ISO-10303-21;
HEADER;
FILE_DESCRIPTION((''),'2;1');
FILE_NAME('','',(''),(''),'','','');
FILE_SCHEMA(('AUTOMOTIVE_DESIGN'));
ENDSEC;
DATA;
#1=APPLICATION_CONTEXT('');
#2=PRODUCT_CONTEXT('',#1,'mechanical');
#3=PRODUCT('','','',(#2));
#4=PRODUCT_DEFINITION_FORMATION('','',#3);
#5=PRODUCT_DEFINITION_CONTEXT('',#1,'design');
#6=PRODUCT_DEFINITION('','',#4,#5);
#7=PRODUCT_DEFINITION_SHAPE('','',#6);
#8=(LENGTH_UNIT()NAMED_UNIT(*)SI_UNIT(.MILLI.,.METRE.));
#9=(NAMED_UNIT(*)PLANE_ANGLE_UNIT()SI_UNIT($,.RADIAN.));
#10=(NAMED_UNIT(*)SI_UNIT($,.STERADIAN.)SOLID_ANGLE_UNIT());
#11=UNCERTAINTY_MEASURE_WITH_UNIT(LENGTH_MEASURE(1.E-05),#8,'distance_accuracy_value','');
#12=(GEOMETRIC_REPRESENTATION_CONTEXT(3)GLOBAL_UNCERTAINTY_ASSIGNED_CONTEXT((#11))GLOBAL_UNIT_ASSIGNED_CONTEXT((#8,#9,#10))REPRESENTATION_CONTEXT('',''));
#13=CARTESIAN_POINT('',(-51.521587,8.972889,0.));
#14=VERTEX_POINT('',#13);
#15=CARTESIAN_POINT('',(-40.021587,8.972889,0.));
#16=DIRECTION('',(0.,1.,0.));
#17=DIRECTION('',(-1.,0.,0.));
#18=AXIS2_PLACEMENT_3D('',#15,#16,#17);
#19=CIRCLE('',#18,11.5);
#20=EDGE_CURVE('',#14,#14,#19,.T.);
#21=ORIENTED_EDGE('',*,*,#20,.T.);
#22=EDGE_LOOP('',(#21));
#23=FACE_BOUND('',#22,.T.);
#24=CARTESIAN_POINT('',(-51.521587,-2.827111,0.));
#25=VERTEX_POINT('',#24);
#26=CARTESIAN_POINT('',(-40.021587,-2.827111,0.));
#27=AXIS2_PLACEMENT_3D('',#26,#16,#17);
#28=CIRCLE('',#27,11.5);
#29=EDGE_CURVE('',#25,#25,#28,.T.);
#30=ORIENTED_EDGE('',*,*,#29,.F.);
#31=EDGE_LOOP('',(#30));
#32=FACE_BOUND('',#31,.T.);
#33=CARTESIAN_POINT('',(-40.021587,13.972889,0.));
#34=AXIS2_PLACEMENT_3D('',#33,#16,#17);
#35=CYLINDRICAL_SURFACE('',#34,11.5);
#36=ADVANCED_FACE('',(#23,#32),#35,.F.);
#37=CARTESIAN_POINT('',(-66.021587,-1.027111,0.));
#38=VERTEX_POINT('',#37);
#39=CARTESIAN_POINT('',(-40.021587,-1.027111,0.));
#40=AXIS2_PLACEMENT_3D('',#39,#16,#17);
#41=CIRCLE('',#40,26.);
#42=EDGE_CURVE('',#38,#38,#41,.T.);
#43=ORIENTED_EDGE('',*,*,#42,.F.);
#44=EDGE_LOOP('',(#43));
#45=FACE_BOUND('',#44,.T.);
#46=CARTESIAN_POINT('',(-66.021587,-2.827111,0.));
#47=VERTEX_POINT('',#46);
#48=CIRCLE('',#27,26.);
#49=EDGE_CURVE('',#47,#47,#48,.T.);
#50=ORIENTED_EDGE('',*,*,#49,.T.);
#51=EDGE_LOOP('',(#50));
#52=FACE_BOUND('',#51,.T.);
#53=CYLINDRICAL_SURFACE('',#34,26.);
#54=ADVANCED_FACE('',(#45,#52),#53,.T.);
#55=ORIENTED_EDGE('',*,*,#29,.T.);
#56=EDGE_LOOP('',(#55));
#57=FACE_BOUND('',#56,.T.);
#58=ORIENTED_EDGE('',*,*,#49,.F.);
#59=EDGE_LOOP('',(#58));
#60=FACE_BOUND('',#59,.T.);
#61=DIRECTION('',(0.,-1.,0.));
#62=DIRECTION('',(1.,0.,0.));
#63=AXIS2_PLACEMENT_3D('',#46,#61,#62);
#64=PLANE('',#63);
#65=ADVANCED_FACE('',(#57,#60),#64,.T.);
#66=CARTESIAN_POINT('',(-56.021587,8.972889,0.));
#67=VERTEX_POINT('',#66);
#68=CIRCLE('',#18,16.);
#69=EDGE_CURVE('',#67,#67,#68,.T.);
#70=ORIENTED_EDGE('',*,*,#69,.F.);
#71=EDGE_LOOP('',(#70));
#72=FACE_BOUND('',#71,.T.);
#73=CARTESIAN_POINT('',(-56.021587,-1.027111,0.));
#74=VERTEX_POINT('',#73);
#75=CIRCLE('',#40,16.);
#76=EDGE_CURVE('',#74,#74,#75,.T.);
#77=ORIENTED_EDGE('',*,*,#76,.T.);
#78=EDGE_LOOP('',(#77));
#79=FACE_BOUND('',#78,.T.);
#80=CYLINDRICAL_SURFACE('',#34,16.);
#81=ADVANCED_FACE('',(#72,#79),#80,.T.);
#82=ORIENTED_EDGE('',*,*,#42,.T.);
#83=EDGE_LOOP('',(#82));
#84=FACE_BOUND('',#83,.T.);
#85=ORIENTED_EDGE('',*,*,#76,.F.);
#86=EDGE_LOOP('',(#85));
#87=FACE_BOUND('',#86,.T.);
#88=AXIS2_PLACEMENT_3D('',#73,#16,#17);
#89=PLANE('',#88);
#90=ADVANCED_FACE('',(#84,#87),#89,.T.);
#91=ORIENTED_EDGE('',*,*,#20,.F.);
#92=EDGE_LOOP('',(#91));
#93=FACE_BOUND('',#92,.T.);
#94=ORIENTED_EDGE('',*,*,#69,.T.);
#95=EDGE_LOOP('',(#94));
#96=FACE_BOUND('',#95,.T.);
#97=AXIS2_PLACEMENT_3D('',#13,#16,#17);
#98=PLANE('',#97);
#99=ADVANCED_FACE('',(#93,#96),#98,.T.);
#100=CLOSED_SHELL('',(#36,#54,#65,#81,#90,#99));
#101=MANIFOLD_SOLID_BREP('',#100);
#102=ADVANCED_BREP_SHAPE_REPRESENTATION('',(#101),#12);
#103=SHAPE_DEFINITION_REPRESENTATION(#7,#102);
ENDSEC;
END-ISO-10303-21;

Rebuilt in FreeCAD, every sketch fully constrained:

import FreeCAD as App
import Part
import Sketcher

V = App.Vector

doc = App.newDocument("Part")
body = doc.addObject("PartDesign::Body", "Body")

sketch1 = body.newObject("Sketcher::SketchObject", "Sketch")
sketch1.AttachmentSupport = (doc.getObject("XY_Plane"), [""])
sketch1.MapMode = "FlatFace"
sketch1.addGeometry([
    Part.LineSegment(V(-51.5, -2.8, 0), V(-51.5, 9, 0)),
    Part.LineSegment(V(-51.5, 9, 0), V(-56, 9, 0)),
    Part.LineSegment(V(-56, 9, 0), V(-56, -1, 0)),
    Part.LineSegment(V(-56, -1, 0), V(-66, -1, 0)),
    Part.LineSegment(V(-66, -1, 0), V(-66, -2.8, 0)),
    Part.LineSegment(V(-66, -2.8, 0), V(-51.5, -2.8, 0)),
], False)
sketch1.addGeometry(Part.LineSegment(V(-40, 9, 0), V(-40, -2.8, 0)), True)
sketch1.addConstraint([
    Sketcher.Constraint("Coincident", 0, 2, 1, 1),
    Sketcher.Constraint("Coincident", 1, 2, 2, 1),
    Sketcher.Constraint("Coincident", 2, 2, 3, 1),
    Sketcher.Constraint("Coincident", 3, 2, 4, 1),
    Sketcher.Constraint("Coincident", 4, 2, 5, 1),
    Sketcher.Constraint("Coincident", 5, 2, 0, 1),
    Sketcher.Constraint("Vertical", 0),
    Sketcher.Constraint("Horizontal", 1),
    Sketcher.Constraint("Vertical", 2),
    Sketcher.Constraint("Horizontal", 3),
    Sketcher.Constraint("Vertical", 4),
    Sketcher.Constraint("Horizontal", 5),
    Sketcher.Constraint("Vertical", 6),
    Sketcher.Constraint("Horizontal", 1, 2, 6, 1),
    Sketcher.Constraint("Horizontal", 5, 2, 6, 2),
    Sketcher.Constraint("Equal", 3, 2),
    Sketcher.Constraint("DistanceX", 3, 2, 3, 1, 10.0),
    Sketcher.Constraint("DistanceX", 1, 2, 1, 1, 4.5),
    Sketcher.Constraint("DistanceY", 0, 1, 0, 2, 11.8),
    Sketcher.Constraint("DistanceX", 1, 2, 6, 1, 16.0),
    Sketcher.Constraint("DistanceY", -1, 1, 0, 2, 8.972889),
    Sketcher.Constraint("DistanceX", 0, 2, -1, 1, 51.521587),
])
revolution = body.newObject("PartDesign::Revolution", "Revolution")
revolution.Profile = sketch1
revolution.ReferenceAxis = (sketch1, ["Axis0"])
revolution.Angle = 360

doc.recompute()
